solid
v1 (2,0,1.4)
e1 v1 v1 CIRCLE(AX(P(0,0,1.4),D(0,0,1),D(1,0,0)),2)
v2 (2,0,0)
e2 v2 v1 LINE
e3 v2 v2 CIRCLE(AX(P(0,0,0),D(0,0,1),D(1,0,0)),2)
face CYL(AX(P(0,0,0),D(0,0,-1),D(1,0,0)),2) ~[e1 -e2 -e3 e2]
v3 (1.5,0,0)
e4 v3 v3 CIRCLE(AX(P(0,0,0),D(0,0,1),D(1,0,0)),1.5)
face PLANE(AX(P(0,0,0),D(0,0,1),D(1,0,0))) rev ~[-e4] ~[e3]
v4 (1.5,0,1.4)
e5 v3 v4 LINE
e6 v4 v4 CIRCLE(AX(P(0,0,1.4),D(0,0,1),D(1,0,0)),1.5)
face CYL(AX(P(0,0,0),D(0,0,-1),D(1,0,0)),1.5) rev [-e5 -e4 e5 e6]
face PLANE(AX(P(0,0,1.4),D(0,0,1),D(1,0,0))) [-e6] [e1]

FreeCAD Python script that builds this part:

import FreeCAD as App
import Part
import Sketcher

V = App.Vector
Q = App.Units.Quantity

doc = App.newDocument("Part")
body = doc.addObject("PartDesign::Body", "Body")

# Sketch on XY plane
sketch1 = doc.addObject("Sketcher::SketchObject", "Sketch")
body.addObject(sketch1)
sketch1.AttachmentSupport = (doc.XY_Plane, [""])
sketch1.MapMode = "FlatFace"
sketch1.addGeometry([
    Part.Circle(V(0, 0, 0), V(0, 0, 1), 2),
    Part.Circle(V(0, 0, 0), V(0, 0, 1), 1.5),
], False)
sketch1.addConstraint([
    Sketcher.Constraint("Coincident", 0, 3, -1, 1),
    Sketcher.Constraint("Coincident", 1, 3, -1, 1),
    Sketcher.Constraint("Diameter", 0, Q("4 mm")),
    Sketcher.Constraint("Diameter", 1, Q("3 mm")),
])
pad1 = doc.addObject("PartDesign::Pad", "Pad")
body.addObject(pad1)
pad1.Profile = sketch1
pad1.Length = 1.4

doc.recompute()
